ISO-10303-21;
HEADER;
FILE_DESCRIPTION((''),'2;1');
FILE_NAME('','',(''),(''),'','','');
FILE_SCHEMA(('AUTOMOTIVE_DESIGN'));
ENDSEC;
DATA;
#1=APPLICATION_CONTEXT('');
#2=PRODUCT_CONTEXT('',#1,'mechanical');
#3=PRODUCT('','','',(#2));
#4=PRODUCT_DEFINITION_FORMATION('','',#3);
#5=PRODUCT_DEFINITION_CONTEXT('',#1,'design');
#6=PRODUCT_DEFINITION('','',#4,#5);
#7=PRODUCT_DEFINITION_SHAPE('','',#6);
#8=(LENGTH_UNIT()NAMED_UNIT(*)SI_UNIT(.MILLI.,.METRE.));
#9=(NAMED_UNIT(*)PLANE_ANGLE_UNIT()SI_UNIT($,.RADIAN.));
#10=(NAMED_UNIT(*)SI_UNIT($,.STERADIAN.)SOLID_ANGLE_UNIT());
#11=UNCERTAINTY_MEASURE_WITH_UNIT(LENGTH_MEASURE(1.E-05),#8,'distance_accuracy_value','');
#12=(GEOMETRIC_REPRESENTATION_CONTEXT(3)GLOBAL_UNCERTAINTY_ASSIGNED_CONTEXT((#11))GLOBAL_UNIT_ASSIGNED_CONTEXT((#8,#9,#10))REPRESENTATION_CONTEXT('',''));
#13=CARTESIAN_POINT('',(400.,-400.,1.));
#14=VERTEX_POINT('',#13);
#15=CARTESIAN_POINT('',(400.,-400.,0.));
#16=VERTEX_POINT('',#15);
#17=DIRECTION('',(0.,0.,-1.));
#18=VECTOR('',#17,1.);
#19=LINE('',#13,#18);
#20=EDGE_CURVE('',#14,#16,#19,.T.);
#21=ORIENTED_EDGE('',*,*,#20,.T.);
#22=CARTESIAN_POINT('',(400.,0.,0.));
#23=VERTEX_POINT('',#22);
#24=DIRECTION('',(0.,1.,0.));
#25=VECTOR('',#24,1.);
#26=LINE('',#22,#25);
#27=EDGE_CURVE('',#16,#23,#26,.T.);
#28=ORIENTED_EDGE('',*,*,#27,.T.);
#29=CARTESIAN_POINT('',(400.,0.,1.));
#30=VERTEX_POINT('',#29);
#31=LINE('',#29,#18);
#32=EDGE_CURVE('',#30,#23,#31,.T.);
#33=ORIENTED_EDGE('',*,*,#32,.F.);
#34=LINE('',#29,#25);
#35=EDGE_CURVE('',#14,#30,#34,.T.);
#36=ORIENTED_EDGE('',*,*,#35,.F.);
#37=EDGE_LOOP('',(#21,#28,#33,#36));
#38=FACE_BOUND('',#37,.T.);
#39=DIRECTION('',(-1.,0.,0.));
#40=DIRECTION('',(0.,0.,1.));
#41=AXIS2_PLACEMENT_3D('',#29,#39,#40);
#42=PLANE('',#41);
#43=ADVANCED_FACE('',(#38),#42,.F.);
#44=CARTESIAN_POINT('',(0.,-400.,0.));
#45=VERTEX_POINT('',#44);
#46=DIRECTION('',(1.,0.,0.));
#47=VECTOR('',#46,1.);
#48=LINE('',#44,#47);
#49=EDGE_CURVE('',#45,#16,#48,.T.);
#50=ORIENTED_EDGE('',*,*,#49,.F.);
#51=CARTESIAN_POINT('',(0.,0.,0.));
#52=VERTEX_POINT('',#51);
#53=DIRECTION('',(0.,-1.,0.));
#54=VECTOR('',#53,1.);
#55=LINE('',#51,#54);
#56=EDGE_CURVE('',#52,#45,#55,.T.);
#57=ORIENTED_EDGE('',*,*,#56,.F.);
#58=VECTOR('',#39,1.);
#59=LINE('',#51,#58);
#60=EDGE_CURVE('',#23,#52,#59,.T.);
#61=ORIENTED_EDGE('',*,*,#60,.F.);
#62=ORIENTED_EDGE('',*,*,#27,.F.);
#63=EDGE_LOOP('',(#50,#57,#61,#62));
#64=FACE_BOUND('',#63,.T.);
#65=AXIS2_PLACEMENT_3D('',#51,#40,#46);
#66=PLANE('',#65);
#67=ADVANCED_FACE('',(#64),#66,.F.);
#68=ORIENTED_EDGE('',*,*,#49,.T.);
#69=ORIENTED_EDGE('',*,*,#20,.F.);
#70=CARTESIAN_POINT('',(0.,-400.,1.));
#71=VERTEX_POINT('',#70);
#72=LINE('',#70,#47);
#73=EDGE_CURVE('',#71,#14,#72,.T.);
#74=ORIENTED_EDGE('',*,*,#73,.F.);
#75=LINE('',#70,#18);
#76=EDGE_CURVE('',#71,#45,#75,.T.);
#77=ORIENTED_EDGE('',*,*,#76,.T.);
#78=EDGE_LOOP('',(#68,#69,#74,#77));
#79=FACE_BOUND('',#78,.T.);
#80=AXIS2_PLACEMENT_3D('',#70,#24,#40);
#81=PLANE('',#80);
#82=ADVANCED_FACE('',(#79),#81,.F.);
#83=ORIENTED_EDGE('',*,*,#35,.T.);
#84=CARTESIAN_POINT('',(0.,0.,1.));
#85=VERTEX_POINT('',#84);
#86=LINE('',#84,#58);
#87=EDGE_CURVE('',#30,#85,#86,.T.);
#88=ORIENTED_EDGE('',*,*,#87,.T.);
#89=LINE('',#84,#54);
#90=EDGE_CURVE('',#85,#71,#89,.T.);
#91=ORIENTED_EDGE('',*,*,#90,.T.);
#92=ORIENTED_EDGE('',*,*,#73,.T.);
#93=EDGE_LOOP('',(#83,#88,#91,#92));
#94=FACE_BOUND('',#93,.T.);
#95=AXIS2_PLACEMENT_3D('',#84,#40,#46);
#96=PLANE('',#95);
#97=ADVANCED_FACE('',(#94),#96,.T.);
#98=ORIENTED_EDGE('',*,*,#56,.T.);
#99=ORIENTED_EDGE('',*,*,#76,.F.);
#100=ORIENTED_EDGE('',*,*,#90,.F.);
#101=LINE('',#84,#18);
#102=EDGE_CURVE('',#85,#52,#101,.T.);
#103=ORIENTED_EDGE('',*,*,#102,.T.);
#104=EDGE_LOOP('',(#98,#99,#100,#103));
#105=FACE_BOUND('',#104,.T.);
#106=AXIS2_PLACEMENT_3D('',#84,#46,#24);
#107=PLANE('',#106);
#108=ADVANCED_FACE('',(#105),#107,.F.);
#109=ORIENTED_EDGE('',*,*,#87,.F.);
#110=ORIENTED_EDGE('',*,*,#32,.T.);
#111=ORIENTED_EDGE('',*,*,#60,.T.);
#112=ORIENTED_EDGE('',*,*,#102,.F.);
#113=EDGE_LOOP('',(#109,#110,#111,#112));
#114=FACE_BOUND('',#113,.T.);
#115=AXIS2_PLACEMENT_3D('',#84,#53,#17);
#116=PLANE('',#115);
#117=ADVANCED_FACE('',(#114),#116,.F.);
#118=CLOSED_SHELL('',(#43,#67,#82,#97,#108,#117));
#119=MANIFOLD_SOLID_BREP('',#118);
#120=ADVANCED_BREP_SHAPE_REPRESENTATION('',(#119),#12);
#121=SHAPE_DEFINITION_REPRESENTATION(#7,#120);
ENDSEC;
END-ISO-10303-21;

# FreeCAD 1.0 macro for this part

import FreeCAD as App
import Part
import Sketcher


def add_polygon(sketch, points):
    """Adds a closed chain of lines whose ends are joined by coincident constraints."""
    first, n = sketch.GeometryCount, len(points)
    for a, b in zip(points, points[1:] + points[:1]):
        sketch.addGeometry(Part.LineSegment(App.Vector(*a, 0), App.Vector(*b, 0)), False)
    for i in range(n):
        sketch.addConstraint(Sketcher.Constraint("Coincident", first + i, 2, first + (i + 1) % n, 1))

doc = App.newDocument("Part")
body = doc.addObject("PartDesign::Body", "Body")

# Sketch on XY plane
sketch1 = doc.addObject("Sketcher::SketchObject", "Sketch")
body.addObject(sketch1)
sketch1.AttachmentSupport = (doc.XY_Plane, [""])
sketch1.MapMode = "FlatFace"
add_polygon(sketch1, [(0, 0), (0, -400), (400, -400), (400, 0)])  # lines 0-3
sketch1.addConstraint(Sketcher.Constraint("Vertical", 0))
sketch1.addConstraint(Sketcher.Constraint("Horizontal", 1))
sketch1.addConstraint(Sketcher.Constraint("Vertical", 2))
sketch1.addConstraint(Sketcher.Constraint("Horizontal", 3))
sketch1.addConstraint(Sketcher.Constraint("Coincident", 3, 2, -1, 1))
sketch1.addConstraint(Sketcher.Constraint("Equal", 3, 0))
sketch1.addConstraint(Sketcher.Constraint("DistanceX", 1, 1, 1, 2, 400.0))
pad1 = doc.addObject("PartDesign::Pad", "Pad")
body.addObject(pad1)
pad1.Profile = sketch1
pad1.Length = 1

doc.recompute()
